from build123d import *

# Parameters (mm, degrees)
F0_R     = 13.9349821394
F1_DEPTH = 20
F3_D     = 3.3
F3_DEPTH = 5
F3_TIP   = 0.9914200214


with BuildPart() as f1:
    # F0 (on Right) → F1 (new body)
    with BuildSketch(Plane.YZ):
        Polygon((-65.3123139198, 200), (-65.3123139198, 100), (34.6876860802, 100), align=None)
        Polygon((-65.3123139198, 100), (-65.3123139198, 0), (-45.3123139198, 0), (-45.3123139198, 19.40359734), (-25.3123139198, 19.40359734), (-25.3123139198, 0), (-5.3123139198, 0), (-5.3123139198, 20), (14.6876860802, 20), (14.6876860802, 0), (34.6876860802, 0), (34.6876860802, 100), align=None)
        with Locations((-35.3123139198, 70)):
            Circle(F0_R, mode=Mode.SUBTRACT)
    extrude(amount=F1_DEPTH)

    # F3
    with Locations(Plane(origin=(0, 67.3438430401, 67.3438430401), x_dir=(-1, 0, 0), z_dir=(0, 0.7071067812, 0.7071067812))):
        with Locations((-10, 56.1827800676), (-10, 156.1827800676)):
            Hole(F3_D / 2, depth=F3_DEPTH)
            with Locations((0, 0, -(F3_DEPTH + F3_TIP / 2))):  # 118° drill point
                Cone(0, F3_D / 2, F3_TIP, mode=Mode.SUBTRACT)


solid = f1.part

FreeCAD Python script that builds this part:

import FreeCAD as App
import Part
import Sketcher


def add_polygon(sketch, points):
    """Adds a closed chain of lines whose ends are joined by coincident constraints."""
    first, n = sketch.GeometryCount, len(points)
    for a, b in zip(points, points[1:] + points[:1]):
        sketch.addGeometry(Part.LineSegment(App.Vector(*a, 0), App.Vector(*b, 0)), False)
    for i in range(n):
        sketch.addConstraint(Sketcher.Constraint("Coincident", first + i, 2, first + (i + 1) % n, 1))

doc = App.newDocument("Part")
body = doc.addObject("PartDesign::Body", "Body")

sketch1 = doc.addObject("Sketcher::SketchObject", "Sketch")
body.addObject(sketch1)
sketch1.AttachmentSupport = (doc.YZ_Plane, [""])
sketch1.MapMode = "FlatFace"
add_polygon(sketch1, [(-65, 200), (-65, 0), (-45, 0), (-45, 19), (-25, 19), (-25, 0), (-5, 0), (-5, 20), (15, 20), (15, 0), (35, 0), (35, 100)])
sketch1.addGeometry(Part.Circle(App.Vector(-35, 70, 0), App.Vector(0, 0, 1), 14), False)
sketch1.addConstraint([
    Sketcher.Constraint("Vertical", 0),
    Sketcher.Constraint("Horizontal", 1),
    Sketcher.Constraint("Vertical", 2),
    Sketcher.Constraint("Horizontal", 3),
    Sketcher.Constraint("Vertical", 4),
    Sketcher.Constraint("Horizontal", 5),
    Sketcher.Constraint("Vertical", 6),
    Sketcher.Constraint("Horizontal", 7),
    Sketcher.Constraint("Vertical", 8),
    Sketcher.Constraint("Horizontal", 9),
    Sketcher.Constraint("Vertical", 10),
    Sketcher.Constraint("PointOnObject", 0, 2, -1),
    Sketcher.Constraint("PointOnObject", 4, 2, -1),
    Sketcher.Constraint("PointOnObject", 8, 2, -1),
    Sketcher.Constraint("Equal", 1, 3),
    Sketcher.Constraint("Equal", 3, 5),
    Sketcher.Constraint("Equal", 5, 7),
    Sketcher.Constraint("Equal", 7, 9),
    Sketcher.Constraint("Equal", 9, 6),
    Sketcher.Constraint("DistanceX", 1, 1, 1, 2, 20.0),
    Sketcher.Constraint("DistanceY", 0, 2, 0, 1, 200.0),
    Sketcher.Constraint("DistanceY", 10, 1, 10, 2, 100.0),
    Sketcher.Constraint("DistanceY", -1, 1, 12, 3, 70.0),
    Sketcher.Constraint("DistanceX", 0, 2, 12, 3, 30.0),
    Sketcher.Constraint("Diameter", 12, 27.869964),
    Sketcher.Constraint("DistanceY", 2, 1, 2, 2, 19.403597),
    Sketcher.Constraint("DistanceX", 12, 3, -1, 1, 35.312314),
])
pad1 = doc.addObject("PartDesign::Pad", "Pad")
body.addObject(pad1)
pad1.Profile = sketch1
pad1.Length = 20

sketch2 = doc.addObject("Sketcher::SketchObject", "Sketch001")
body.addObject(sketch2)
sketch2.Placement = App.Placement(App.Vector(0, 67.343843, 67.343843), App.Rotation(App.Vector(-1, 0, 0), App.Vector(0, -0.707106781, 0.707106781), App.Vector(0, 0.707106781, 0.707106781), "ZXY"))
sketch2.addGeometry([
    Part.Circle(App.Vector(-10, 56.2, 0), App.Vector(0, 0, 1), 1.6),
    Part.Circle(App.Vector(-10, 156.2, 0), App.Vector(0, 0, 1), 1.6),
], False)
sketch2.addConstraint([
    Sketcher.Constraint("Equal", 0, 1),
    Sketcher.Constraint("Vertical", 0, 3, 1, 3),
    Sketcher.Constraint("Diameter", 0, 3.3),
    Sketcher.Constraint("DistanceX", 0, 3, -1, 1, 10.0),
    Sketcher.Constraint("DistanceY", 0, 3, 1, 3, 100.0),
    Sketcher.Constraint("DistanceY", -1, 1, 0, 3, 56.18278),
])
doc.recompute()
hole = doc.addObject("PartDesign::Hole", "Hole")
body.addObject(hole)
hole.Profile = sketch2
hole.ThreadType = "None"
hole.Diameter = 3.3
hole.DepthType = "Dimension"
hole.Depth = 5
hole.DrillPoint = "Angled"
hole.DrillPointAngle = 118

doc.recompute()
